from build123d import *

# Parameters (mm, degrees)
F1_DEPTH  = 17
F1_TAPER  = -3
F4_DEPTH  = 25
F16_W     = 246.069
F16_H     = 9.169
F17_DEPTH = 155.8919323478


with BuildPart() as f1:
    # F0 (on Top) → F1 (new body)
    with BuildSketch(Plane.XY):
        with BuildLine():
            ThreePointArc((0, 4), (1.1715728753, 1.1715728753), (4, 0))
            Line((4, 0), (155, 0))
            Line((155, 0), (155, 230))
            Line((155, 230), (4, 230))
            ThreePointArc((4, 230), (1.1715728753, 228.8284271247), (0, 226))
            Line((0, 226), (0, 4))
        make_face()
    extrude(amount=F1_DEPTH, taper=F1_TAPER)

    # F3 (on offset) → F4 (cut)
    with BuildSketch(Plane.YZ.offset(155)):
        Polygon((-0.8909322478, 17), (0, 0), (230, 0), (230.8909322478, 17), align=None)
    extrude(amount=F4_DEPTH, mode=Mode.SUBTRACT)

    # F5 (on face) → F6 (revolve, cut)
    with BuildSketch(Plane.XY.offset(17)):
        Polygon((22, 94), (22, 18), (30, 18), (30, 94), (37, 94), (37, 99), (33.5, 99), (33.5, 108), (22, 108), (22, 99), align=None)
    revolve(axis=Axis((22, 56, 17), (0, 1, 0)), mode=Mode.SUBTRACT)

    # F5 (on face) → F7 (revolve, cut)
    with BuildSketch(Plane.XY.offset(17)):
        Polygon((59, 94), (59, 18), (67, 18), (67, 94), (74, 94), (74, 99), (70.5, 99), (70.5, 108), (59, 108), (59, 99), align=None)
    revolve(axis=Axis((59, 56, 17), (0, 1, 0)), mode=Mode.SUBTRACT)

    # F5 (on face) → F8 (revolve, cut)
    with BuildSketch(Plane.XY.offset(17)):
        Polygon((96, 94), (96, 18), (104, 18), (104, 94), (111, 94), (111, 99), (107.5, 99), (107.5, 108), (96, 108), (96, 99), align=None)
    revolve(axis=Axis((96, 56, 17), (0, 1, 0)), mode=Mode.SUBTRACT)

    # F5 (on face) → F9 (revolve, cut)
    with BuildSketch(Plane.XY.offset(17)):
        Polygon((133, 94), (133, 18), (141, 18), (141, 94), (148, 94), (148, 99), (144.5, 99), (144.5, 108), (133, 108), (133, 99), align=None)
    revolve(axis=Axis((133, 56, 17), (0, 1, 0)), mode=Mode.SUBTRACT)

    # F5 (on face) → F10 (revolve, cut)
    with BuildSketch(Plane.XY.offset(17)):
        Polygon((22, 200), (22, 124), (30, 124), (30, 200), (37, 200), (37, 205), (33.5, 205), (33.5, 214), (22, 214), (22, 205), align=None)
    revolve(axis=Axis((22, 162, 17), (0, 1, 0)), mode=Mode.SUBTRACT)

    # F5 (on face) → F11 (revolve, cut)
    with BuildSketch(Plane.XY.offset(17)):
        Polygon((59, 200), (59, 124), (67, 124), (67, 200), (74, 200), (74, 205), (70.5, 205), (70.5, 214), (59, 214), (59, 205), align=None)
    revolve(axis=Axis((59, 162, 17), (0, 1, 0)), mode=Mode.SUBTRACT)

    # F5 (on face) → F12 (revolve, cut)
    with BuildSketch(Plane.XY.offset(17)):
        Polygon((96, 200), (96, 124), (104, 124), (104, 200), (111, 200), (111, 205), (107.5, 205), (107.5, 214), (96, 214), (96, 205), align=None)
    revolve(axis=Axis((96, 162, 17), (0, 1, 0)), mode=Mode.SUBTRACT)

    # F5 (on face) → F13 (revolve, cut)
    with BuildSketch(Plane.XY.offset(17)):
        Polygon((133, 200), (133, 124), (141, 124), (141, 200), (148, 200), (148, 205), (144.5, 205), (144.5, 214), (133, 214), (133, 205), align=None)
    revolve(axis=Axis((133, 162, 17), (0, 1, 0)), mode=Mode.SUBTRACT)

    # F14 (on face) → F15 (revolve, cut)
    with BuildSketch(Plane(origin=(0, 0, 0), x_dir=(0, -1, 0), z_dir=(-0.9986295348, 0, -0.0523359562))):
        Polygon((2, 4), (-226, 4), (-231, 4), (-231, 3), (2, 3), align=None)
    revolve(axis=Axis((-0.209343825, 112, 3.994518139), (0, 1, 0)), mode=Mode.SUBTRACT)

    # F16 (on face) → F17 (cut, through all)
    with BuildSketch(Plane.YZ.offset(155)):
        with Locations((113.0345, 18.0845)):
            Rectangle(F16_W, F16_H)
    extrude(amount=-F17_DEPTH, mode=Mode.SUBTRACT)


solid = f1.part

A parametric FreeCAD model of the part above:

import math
import FreeCAD as App
import Part
import Sketcher
from FreeCAD import Vector
Q = App.Units.Quantity

doc = App.newDocument("Part")
params = doc.addObject("Spreadsheet::Sheet", "Params")
for row, (alias, value) in enumerate([
    ("sketch1_radius", "4 mm"),
    ("sketch1_width", "151 mm"),
    ("sketch1_height", "230 mm"),
    ("pad1_length", "17 mm"),
    ("pad1_taper", "3 deg"),
    ("sketch2_width", "230 mm"),
    ("pocket1_length", "25 mm"),
    ("sketch3_width", "8 mm"),
    ("sketch3_width2", "7 mm"),
    ("sketch3_height", "76 mm"),
    ("sketch3_height2", "5 mm"),
    ("sketch3_height3", "9 mm"),
    ("groove_angle", "360 deg"),
    ("sketch4_width", "8 mm"),
    ("sketch4_width2", "7 mm"),
    ("sketch4_height", "76 mm"),
    ("sketch4_height2", "5 mm"),
    ("sketch4_height3", "9 mm"),
    ("groove2_angle", "360 deg"),
    ("sketch5_width", "8 mm"),
    ("sketch5_width2", "7 mm"),
    ("sketch5_height", "76 mm"),
    ("sketch5_height2", "5 mm"),
    ("sketch5_height3", "9 mm"),
    ("groove3_angle", "360 deg"),
    ("sketch6_width", "8 mm"),
    ("sketch6_width2", "7 mm"),
    ("sketch6_height", "76 mm"),
    ("sketch6_height2", "5 mm"),
    ("sketch6_height3", "9 mm"),
    ("groove4_angle", "360 deg"),
    ("sketch7_width", "8 mm"),
    ("sketch7_width2", "7 mm"),
    ("sketch7_height", "76 mm"),
    ("sketch7_height2", "5 mm"),
    ("sketch7_height3", "9 mm"),
    ("groove5_angle", "360 deg"),
    ("sketch8_width", "8 mm"),
    ("sketch8_width2", "7 mm"),
    ("sketch8_height", "76 mm"),
    ("sketch8_height2", "5 mm"),
    ("sketch8_height3", "9 mm"),
    ("groove6_angle", "360 deg"),
    ("sketch9_width", "8 mm"),
    ("sketch9_width2", "7 mm"),
    ("sketch9_height", "76 mm"),
    ("sketch9_height2", "5 mm"),
    ("sketch9_height3", "9 mm"),
    ("groove7_angle", "360 deg"),
    ("sketch10_width", "8 mm"),
    ("sketch10_width2", "7 mm"),
    ("sketch10_height", "76 mm"),
    ("sketch10_height2", "5 mm"),
    ("sketch10_height3", "9 mm"),
    ("groove8_angle", "360 deg"),
    ("sketch11_width", "233 mm"),
    ("sketch11_height", "1 mm"),
    ("groove9_angle", "360 deg"),
], start=1):
    params.set(f"A{row}", alias)
    params.set(f"B{row}", "=" + value)
    params.setAlias(f"B{row}", alias)

body = doc.addObject("PartDesign::Body", "Body")

# Sketch on XY plane
sketch1 = doc.addObject("Sketcher::SketchObject", "Sketch")
body.addObject(sketch1)
sketch1.AttachmentSupport = (doc.XY_Plane, [""])
sketch1.MapMode = "FlatFace"
sketch1.addGeometry(Part.ArcOfCircle(Part.Circle(Vector(4, 4, 0), Vector(0, 0, 1), 4), math.radians(180), math.radians(270)), False)
sketch1.addGeometry(Part.LineSegment(Vector(4, 0, 0), Vector(155, 0, 0)), False)
sketch1.addGeometry(Part.LineSegment(Vector(155, 0, 0), Vector(155, 230, 0)), False)
sketch1.addGeometry(Part.LineSegment(Vector(155, 230, 0), Vector(4, 230, 0)), False)
sketch1.addGeometry(Part.ArcOfCircle(Part.Circle(Vector(4, 226, 0), Vector(0, 0, 1), 4), math.radians(90), math.radians(180)), False)
sketch1.addGeometry(Part.LineSegment(Vector(0, 226, 0), Vector(0, 4, 0)), False)
sketch1.addConstraint(Sketcher.Constraint("Tangent", 0, 2, 1, 1))
sketch1.addConstraint(Sketcher.Constraint("Coincident", 1, 2, 2, 1))
sketch1.addConstraint(Sketcher.Constraint("Coincident", 2, 2, 3, 1))
sketch1.addConstraint(Sketcher.Constraint("Tangent", 3, 2, 4, 1))
sketch1.addConstraint(Sketcher.Constraint("Tangent", 4, 2, 5, 1))
sketch1.addConstraint(Sketcher.Constraint("Tangent", 5, 2, 0, 1))
sketch1.addConstraint(Sketcher.Constraint("Horizontal", 1))
sketch1.addConstraint(Sketcher.Constraint("Vertical", 2))
sketch1.addConstraint(Sketcher.Constraint("Horizontal", 3))
sketch1.addConstraint(Sketcher.Constraint("Vertical", 5))
sketch1.addConstraint(Sketcher.Constraint("Equal", 0, 4))
sketch1.addConstraint(Sketcher.Constraint("PointOnObject", 0, 2, -1))
sketch1.addConstraint(Sketcher.Constraint("PointOnObject", 4, 2, -2))
sketch1.addConstraint(Sketcher.Constraint("Radius", 0, Q("4 mm")))
sketch1.addConstraint(Sketcher.Constraint("DistanceX", 1, 1, 1, 2, Q("151 mm")))
sketch1.addConstraint(Sketcher.Constraint("DistanceY", 2, 1, 2, 2, Q("230 mm")))
sketch1.setExpression("Constraints[13]", "Params.sketch1_radius")
sketch1.setExpression("Constraints[14]", "Params.sketch1_width")
sketch1.setExpression("Constraints[15]", "Params.sketch1_height")
pad1 = doc.addObject("PartDesign::Pad", "Pad")
body.addObject(pad1)
pad1.Profile = sketch1
pad1.setExpression("Length", "Params.pad1_length")
pad1.setExpression("TaperAngle", "Params.pad1_taper")

# Sketch on YZ plane
sketch2 = doc.addObject("Sketcher::SketchObject", "Sketch001")
body.addObject(sketch2)
sketch2.AttachmentSupport = (doc.YZ_Plane, [""])
sketch2.MapMode = "FlatFace"
sketch2.AttachmentOffset = App.Placement(Vector(0, 0, 155), App.Rotation())
sketch2.addGeometry(Part.LineSegment(Vector(-0.890932, 17, 0), Vector(0, 0, 0)), False)
sketch2.addGeometry(Part.LineSegment(Vector(0, 0, 0), Vector(230, 0, 0)), False)
sketch2.addGeometry(Part.LineSegment(Vector(230, 0, 0), Vector(230.890932, 17, 0)), False)
sketch2.addGeometry(Part.LineSegment(Vector(230.890932, 17, 0), Vector(-0.890932, 17, 0)), False)
sketch2.addConstraint(Sketcher.Constraint("Coincident", 0, 2, 1, 1))
sketch2.addConstraint(Sketcher.Constraint("Coincident", 1, 2, 2, 1))
sketch2.addConstraint(Sketcher.Constraint("Coincident", 2, 2, 3, 1))
sketch2.addConstraint(Sketcher.Constraint("Coincident", 3, 2, 0, 1))
sketch2.addConstraint(Sketcher.Constraint("Horizontal", 1))
sketch2.addConstraint(Sketcher.Constraint("Horizontal", 3))
sketch2.addConstraint(Sketcher.Constraint("Coincident", 0, 2, -1, 1))
sketch2.addConstraint(Sketcher.Constraint("Equal", 0, 2))
sketch2.addConstraint(Sketcher.Constraint("DistanceX", 1, 1, 1, 2, Q("230 mm")))
sketch2.addConstraint(Sketcher.Constraint("Angle", 0, Q("-87 deg")))
sketch2.addConstraint(Sketcher.Constraint("DistanceY", -1, 1, 2, 2, Q("17 mm")))
sketch2.setExpression("Constraints[8]", "Params.sketch2_width")
pocket1 = doc.addObject("PartDesign::Pocket", "Pocket")
body.addObject(pocket1)
pocket1.Profile = sketch2
pocket1.setExpression("Length", "Params.pocket1_length")
pocket1.Reversed = True

# Sketch on XY plane
sketch3 = doc.addObject("Sketcher::SketchObject", "Sketch002")
body.addObject(sketch3)
sketch3.AttachmentSupport = (doc.XY_Plane, [""])
sketch3.MapMode = "FlatFace"
sketch3.AttachmentOffset = App.Placement(Vector(0, 0, 17), App.Rotation())
sketch3.addGeometry(Part.LineSegment(Vector(22, 18, 0), Vector(30, 18, 0)), False)
sketch3.addGeometry(Part.LineSegment(Vector(30, 18, 0), Vector(30, 94, 0)), False)
sketch3.addGeometry(Part.LineSegment(Vector(30, 94, 0), Vector(37, 94, 0)), False)
sketch3.addGeometry(Part.LineSegment(Vector(37, 94, 0), Vector(37, 99, 0)), False)
sketch3.addGeometry(Part.LineSegment(Vector(37, 99, 0), Vector(33.5, 99, 0)), False)
sketch3.addGeometry(Part.LineSegment(Vector(33.5, 99, 0), Vector(33.5, 108, 0)), False)
sketch3.addGeometry(Part.LineSegment(Vector(33.5, 108, 0), Vector(22, 108, 0)), False)
sketch3.addGeometry(Part.LineSegment(Vector(22, 108, 0), Vector(22, 18, 0)), False)
sketch3.addGeometry(Part.LineSegment(Vector(22, 18, 0), Vector(22, 108, 0)), True)  # axis
sketch3.addConstraint(Sketcher.Constraint("Coincident", 0, 2, 1, 1))
sketch3.addConstraint(Sketcher.Constraint("Coincident", 1, 2, 2, 1))
sketch3.addConstraint(Sketcher.Constraint("Coincident", 2, 2, 3, 1))
sketch3.addConstraint(Sketcher.Constraint("Coincident", 3, 2, 4, 1))
sketch3.addConstraint(Sketcher.Constraint("Coincident", 4, 2, 5, 1))
sketch3.addConstraint(Sketcher.Constraint("Coincident", 5, 2, 6, 1))
sketch3.addConstraint(Sketcher.Constraint("Coincident", 6, 2, 7, 1))
sketch3.addConstraint(Sketcher.Constraint("Coincident", 7, 2, 0, 1))
sketch3.addConstraint(Sketcher.Constraint("Horizontal", 0))
sketch3.addConstraint(Sketcher.Constraint("Vertical", 1))
sketch3.addConstraint(Sketcher.Constraint("Horizontal", 2))
sketch3.addConstraint(Sketcher.Constraint("Vertical", 3))
sketch3.addConstraint(Sketcher.Constraint("Horizontal", 4))
sketch3.addConstraint(Sketcher.Constraint("Vertical", 5))
sketch3.addConstraint(Sketcher.Constraint("Horizontal", 6))
sketch3.addConstraint(Sketcher.Constraint("Vertical", 7))
sketch3.addConstraint(Sketcher.Constraint("Vertical", 8))
sketch3.addConstraint(Sketcher.Constraint("Coincident", 8, 1, 7, 2))
sketch3.addConstraint(Sketcher.Constraint("Horizontal", 5, 2, 8, 2))
sketch3.addConstraint(Sketcher.Constraint("DistanceX", 0, 1, 0, 2, Q("8 mm")))
sketch3.addConstraint(Sketcher.Constraint("DistanceX", 2, 1, 2, 2, Q("7 mm")))
sketch3.addConstraint(Sketcher.Constraint("DistanceY", 1, 1, 1, 2, Q("76 mm")))
sketch3.addConstraint(Sketcher.Constraint("DistanceY", 3, 1, 3, 2, Q("5 mm")))
sketch3.addConstraint(Sketcher.Constraint("DistanceY", 5, 1, 5, 2, Q("9 mm")))
sketch3.addConstraint(Sketcher.Constraint("DistanceX", 4, 2, 4, 1, Q("3.5 mm")))
sketch3.addConstraint(Sketcher.Constraint("DistanceX", -1, 1, 0, 2, Q("30 mm")))
sketch3.addConstraint(Sketcher.Constraint("DistanceY", -1, 1, 0, 2, Q("18 mm")))
sketch3.setExpression("Constraints[19]", "Params.sketch3_width")
sketch3.setExpression("Constraints[20]", "Params.sketch3_width2")
sketch3.setExpression("Constraints[21]", "Params.sketch3_height")
sketch3.setExpression("Constraints[22]", "Params.sketch3_height2")
sketch3.setExpression("Constraints[23]", "Params.sketch3_height3")
groove = doc.addObject("PartDesign::Groove", "Groove")
body.addObject(groove)
groove.Profile = sketch3
groove.ReferenceAxis = (sketch3, ["Axis0"])
groove.setExpression("Angle", "Params.groove_angle")

# Sketch on XY plane
sketch4 = doc.addObject("Sketcher::SketchObject", "Sketch003")
body.addObject(sketch4)
sketch4.AttachmentSupport = (doc.XY_Plane, [""])
sketch4.MapMode = "FlatFace"
sketch4.AttachmentOffset = App.Placement(Vector(0, 0, 17), App.Rotation())
sketch4.addGeometry(Part.LineSegment(Vector(59, 18, 0), Vector(67, 18, 0)), False)
sketch4.addGeometry(Part.LineSegment(Vector(67, 18, 0), Vector(67, 94, 0)), False)
sketch4.addGeometry(Part.LineSegment(Vector(67, 94, 0), Vector(74, 94, 0)), False)
sketch4.addGeometry(Part.LineSegment(Vector(74, 94, 0), Vector(74, 99, 0)), False)
sketch4.addGeometry(Part.LineSegment(Vector(74, 99, 0), Vector(70.5, 99, 0)), False)
sketch4.addGeometry(Part.LineSegment(Vector(70.5, 99, 0), Vector(70.5, 108, 0)), False)
sketch4.addGeometry(Part.LineSegment(Vector(70.5, 108, 0), Vector(59, 108, 0)), False)
sketch4.addGeometry(Part.LineSegment(Vector(59, 108, 0), Vector(59, 18, 0)), False)
sketch4.addGeometry(Part.LineSegment(Vector(59, 18, 0), Vector(59, 108, 0)), True)  # axis
sketch4.addConstraint(Sketcher.Constraint("Coincident", 0, 2, 1, 1))
sketch4.addConstraint(Sketcher.Constraint("Coincident", 1, 2, 2, 1))
sketch4.addConstraint(Sketcher.Constraint("Coincident", 2, 2, 3, 1))
sketch4.addConstraint(Sketcher.Constraint("Coincident", 3, 2, 4, 1))
sketch4.addConstraint(Sketcher.Constraint("Coincident", 4, 2, 5, 1))
sketch4.addConstraint(Sketcher.Constraint("Coincident", 5, 2, 6, 1))
sketch4.addConstraint(Sketcher.Constraint("Coincident", 6, 2, 7, 1))
sketch4.addConstraint(Sketcher.Constraint("Coincident", 7, 2, 0, 1))
sketch4.addConstraint(Sketcher.Constraint("Horizontal", 0))
sketch4.addConstraint(Sketcher.Constraint("Vertical", 1))
sketch4.addConstraint(Sketcher.Constraint("Horizontal", 2))
sketch4.addConstraint(Sketcher.Constraint("Vertical", 3))
sketch4.addConstraint(Sketcher.Constraint("Horizontal", 4))
sketch4.addConstraint(Sketcher.Constraint("Vertical", 5))
sketch4.addConstraint(Sketcher.Constraint("Horizontal", 6))
sketch4.addConstraint(Sketcher.Constraint("Vertical", 7))
sketch4.addConstraint(Sketcher.Constraint("Vertical", 8))
sketch4.addConstraint(Sketcher.Constraint("Coincident", 8, 1, 7, 2))
sketch4.addConstraint(Sketcher.Constraint("Horizontal", 5, 2, 8, 2))
sketch4.addConstraint(Sketcher.Constraint("DistanceX", 0, 1, 0, 2, Q("8 mm")))
sketch4.addConstraint(Sketcher.Constraint("DistanceX", 2, 1, 2, 2, Q("7 mm")))
sketch4.addConstraint(Sketcher.Constraint("DistanceY", 1, 1, 1, 2, Q("76 mm")))
sketch4.addConstraint(Sketcher.Constraint("DistanceY", 3, 1, 3, 2, Q("5 mm")))
sketch4.addConstraint(Sketcher.Constraint("DistanceY", 5, 1, 5, 2, Q("9 mm")))
sketch4.addConstraint(Sketcher.Constraint("DistanceX", 4, 2, 4, 1, Q("3.5 mm")))
sketch4.addConstraint(Sketcher.Constraint("DistanceX", -1, 1, 0, 2, Q("67 mm")))
sketch4.addConstraint(Sketcher.Constraint("DistanceY", -1, 1, 0, 2, Q("18 mm")))
sketch4.setExpression("Constraints[19]", "Params.sketch4_width")
sketch4.setExpression("Constraints[20]", "Params.sketch4_width2")
sketch4.setExpression("Constraints[21]", "Params.sketch4_height")
sketch4.setExpression("Constraints[22]", "Params.sketch4_height2")
sketch4.setExpression("Constraints[23]", "Params.sketch4_height3")
groove2 = doc.addObject("PartDesign::Groove", "Groove001")
body.addObject(groove2)
groove2.Profile = sketch4
groove2.ReferenceAxis = (sketch4, ["Axis0"])
groove2.setExpression("Angle", "Params.groove2_angle")

# Sketch on XY plane
sketch5 = doc.addObject("Sketcher::SketchObject", "Sketch004")
body.addObject(sketch5)
sketch5.AttachmentSupport = (doc.XY_Plane, [""])
sketch5.MapMode = "FlatFace"
sketch5.AttachmentOffset = App.Placement(Vector(0, 0, 17), App.Rotation())
sketch5.addGeometry(Part.LineSegment(Vector(96, 18, 0), Vector(104, 18, 0)), False)
sketch5.addGeometry(Part.LineSegment(Vector(104, 18, 0), Vector(104, 94, 0)), False)
sketch5.addGeometry(Part.LineSegment(Vector(104, 94, 0), Vector(111, 94, 0)), False)
sketch5.addGeometry(Part.LineSegment(Vector(111, 94, 0), Vector(111, 99, 0)), False)
sketch5.addGeometry(Part.LineSegment(Vector(111, 99, 0), Vector(107.5, 99, 0)), False)
sketch5.addGeometry(Part.LineSegment(Vector(107.5, 99, 0), Vector(107.5, 108, 0)), False)
sketch5.addGeometry(Part.LineSegment(Vector(107.5, 108, 0), Vector(96, 108, 0)), False)
sketch5.addGeometry(Part.LineSegment(Vector(96, 108, 0), Vector(96, 18, 0)), False)
sketch5.addGeometry(Part.LineSegment(Vector(96, 18, 0), Vector(96, 108, 0)), True)  # axis
sketch5.addConstraint(Sketcher.Constraint("Coincident", 0, 2, 1, 1))
sketch5.addConstraint(Sketcher.Constraint("Coincident", 1, 2, 2, 1))
sketch5.addConstraint(Sketcher.Constraint("Coincident", 2, 2, 3, 1))
sketch5.addConstraint(Sketcher.Constraint("Coincident", 3, 2, 4, 1))
sketch5.addConstraint(Sketcher.Constraint("Coincident", 4, 2, 5, 1))
sketch5.addConstraint(Sketcher.Constraint("Coincident", 5, 2, 6, 1))
sketch5.addConstraint(Sketcher.Constraint("Coincident", 6, 2, 7, 1))
sketch5.addConstraint(Sketcher.Constraint("Coincident", 7, 2, 0, 1))
sketch5.addConstraint(Sketcher.Constraint("Horizontal", 0))
sketch5.addConstraint(Sketcher.Constraint("Vertical", 1))
sketch5.addConstraint(Sketcher.Constraint("Horizontal", 2))
sketch5.addConstraint(Sketcher.Constraint("Vertical", 3))
sketch5.addConstraint(Sketcher.Constraint("Horizontal", 4))
sketch5.addConstraint(Sketcher.Constraint("Vertical", 5))
sketch5.addConstraint(Sketcher.Constraint("Horizontal", 6))
sketch5.addConstraint(Sketcher.Constraint("Vertical", 7))
sketch5.addConstraint(Sketcher.Constraint("Vertical", 8))
sketch5.addConstraint(Sketcher.Constraint("Coincident", 8, 1, 7, 2))
sketch5.addConstraint(Sketcher.Constraint("Horizontal", 5, 2, 8, 2))
sketch5.addConstraint(Sketcher.Constraint("DistanceX", 0, 1, 0, 2, Q("8 mm")))
sketch5.addConstraint(Sketcher.Constraint("DistanceX", 2, 1, 2, 2, Q("7 mm")))
sketch5.addConstraint(Sketcher.Constraint("DistanceY", 1, 1, 1, 2, Q("76 mm")))
sketch5.addConstraint(Sketcher.Constraint("DistanceY", 3, 1, 3, 2, Q("5 mm")))
sketch5.addConstraint(Sketcher.Constraint("DistanceY", 5, 1, 5, 2, Q("9 mm")))
sketch5.addConstraint(Sketcher.Constraint("DistanceX", 4, 2, 4, 1, Q("3.5 mm")))
sketch5.addConstraint(Sketcher.Constraint("DistanceX", -1, 1, 0, 2, Q("104 mm")))
sketch5.addConstraint(Sketcher.Constraint("DistanceY", -1, 1, 0, 2, Q("18 mm")))
sketch5.setExpression("Constraints[19]", "Params.sketch5_width")
sketch5.setExpression("Constraints[20]", "Params.sketch5_width2")
sketch5.setExpression("Constraints[21]", "Params.sketch5_height")
sketch5.setExpression("Constraints[22]", "Params.sketch5_height2")
sketch5.setExpression("Constraints[23]", "Params.sketch5_height3")
groove3 = doc.addObject("PartDesign::Groove", "Groove002")
body.addObject(groove3)
groove3.Profile = sketch5
groove3.ReferenceAxis = (sketch5, ["Axis0"])
groove3.setExpression("Angle", "Params.groove3_angle")

# Sketch on XY plane
sketch6 = doc.addObject("Sketcher::SketchObject", "Sketch005")
body.addObject(sketch6)
sketch6.AttachmentSupport = (doc.XY_Plane, [""])
sketch6.MapMode = "FlatFace"
sketch6.AttachmentOffset = App.Placement(Vector(0, 0, 17), App.Rotation())
sketch6.addGeometry(Part.LineSegment(Vector(133, 18, 0), Vector(141, 18, 0)), False)
sketch6.addGeometry(Part.LineSegment(Vector(141, 18, 0), Vector(141, 94, 0)), False)
sketch6.addGeometry(Part.LineSegment(Vector(141, 94, 0), Vector(148, 94, 0)), False)
sketch6.addGeometry(Part.LineSegment(Vector(148, 94, 0), Vector(148, 99, 0)), False)
sketch6.addGeometry(Part.LineSegment(Vector(148, 99, 0), Vector(144.5, 99, 0)), False)
sketch6.addGeometry(Part.LineSegment(Vector(144.5, 99, 0), Vector(144.5, 108, 0)), False)
sketch6.addGeometry(Part.LineSegment(Vector(144.5, 108, 0), Vector(133, 108, 0)), False)
sketch6.addGeometry(Part.LineSegment(Vector(133, 108, 0), Vector(133, 18, 0)), False)
sketch6.addGeometry(Part.LineSegment(Vector(133, 18, 0), Vector(133, 108, 0)), True)  # axis
sketch6.addConstraint(Sketcher.Constraint("Coincident", 0, 2, 1, 1))
sketch6.addConstraint(Sketcher.Constraint("Coincident", 1, 2, 2, 1))
sketch6.addConstraint(Sketcher.Constraint("Coincident", 2, 2, 3, 1))
sketch6.addConstraint(Sketcher.Constraint("Coincident", 3, 2, 4, 1))
sketch6.addConstraint(Sketcher.Constraint("Coincident", 4, 2, 5, 1))
sketch6.addConstraint(Sketcher.Constraint("Coincident", 5, 2, 6, 1))
sketch6.addConstraint(Sketcher.Constraint("Coincident", 6, 2, 7, 1))
sketch6.addConstraint(Sketcher.Constraint("Coincident", 7, 2, 0, 1))
sketch6.addConstraint(Sketcher.Constraint("Horizontal", 0))
sketch6.addConstraint(Sketcher.Constraint("Vertical", 1))
sketch6.addConstraint(Sketcher.Constraint("Horizontal", 2))
sketch6.addConstraint(Sketcher.Constraint("Vertical", 3))
sketch6.addConstraint(Sketcher.Constraint("Horizontal", 4))
sketch6.addConstraint(Sketcher.Constraint("Vertical", 5))
sketch6.addConstraint(Sketcher.Constraint("Horizontal", 6))
sketch6.addConstraint(Sketcher.Constraint("Vertical", 7))
sketch6.addConstraint(Sketcher.Constraint("Vertical", 8))
sketch6.addConstraint(Sketcher.Constraint("Coincident", 8, 1, 7, 2))
sketch6.addConstraint(Sketcher.Constraint("Horizontal", 5, 2, 8, 2))
sketch6.addConstraint(Sketcher.Constraint("DistanceX", 0, 1, 0, 2, Q("8 mm")))
sketch6.addConstraint(Sketcher.Constraint("DistanceX", 2, 1, 2, 2, Q("7 mm")))
sketch6.addConstraint(Sketcher.Constraint("DistanceY", 1, 1, 1, 2, Q("76 mm")))
sketch6.addConstraint(Sketcher.Constraint("DistanceY", 3, 1, 3, 2, Q("5 mm")))
sketch6.addConstraint(Sketcher.Constraint("DistanceY", 5, 1, 5, 2, Q("9 mm")))
sketch6.addConstraint(Sketcher.Constraint("DistanceX", 4, 2, 4, 1, Q("3.5 mm")))
sketch6.addConstraint(Sketcher.Constraint("DistanceX", -1, 1, 0, 2, Q("141 mm")))
sketch6.addConstraint(Sketcher.Constraint("DistanceY", -1, 1, 0, 2, Q("18 mm")))
sketch6.setExpression("Constraints[19]", "Params.sketch6_width")
sketch6.setExpression("Constraints[20]", "Params.sketch6_width2")
sketch6.setExpression("Constraints[21]", "Params.sketch6_height")
sketch6.setExpression("Constraints[22]", "Params.sketch6_height2")
sketch6.setExpression("Constraints[23]", "Params.sketch6_height3")
groove4 = doc.addObject("PartDesign::Groove", "Groove003")
body.addObject(groove4)
groove4.Profile = sketch6
groove4.ReferenceAxis = (sketch6, ["Axis0"])
groove4.setExpression("Angle", "Params.groove4_angle")

# Sketch on XY plane
sketch7 = doc.addObject("Sketcher::SketchObject", "Sketch006")
body.addObject(sketch7)
sketch7.AttachmentSupport = (doc.XY_Plane, [""])
sketch7.MapMode = "FlatFace"
sketch7.AttachmentOffset = App.Placement(Vector(0, 0, 17), App.Rotation())
sketch7.addGeometry(Part.LineSegment(Vector(22, 124, 0), Vector(30, 124, 0)), False)
sketch7.addGeometry(Part.LineSegment(Vector(30, 124, 0), Vector(30, 200, 0)), False)
sketch7.addGeometry(Part.LineSegment(Vector(30, 200, 0), Vector(37, 200, 0)), False)
sketch7.addGeometry(Part.LineSegment(Vector(37, 200, 0), Vector(37, 205, 0)), False)
sketch7.addGeometry(Part.LineSegment(Vector(37, 205, 0), Vector(33.5, 205, 0)), False)
sketch7.addGeometry(Part.LineSegment(Vector(33.5, 205, 0), Vector(33.5, 214, 0)), False)
sketch7.addGeometry(Part.LineSegment(Vector(33.5, 214, 0), Vector(22, 214, 0)), False)
sketch7.addGeometry(Part.LineSegment(Vector(22, 214, 0), Vector(22, 124, 0)), False)
sketch7.addGeometry(Part.LineSegment(Vector(22, 124, 0), Vector(22, 214, 0)), True)  # axis
sketch7.addConstraint(Sketcher.Constraint("Coincident", 0, 2, 1, 1))
sketch7.addConstraint(Sketcher.Constraint("Coincident", 1, 2, 2, 1))
sketch7.addConstraint(Sketcher.Constraint("Coincident", 2, 2, 3, 1))
sketch7.addConstraint(Sketcher.Constraint("Coincident", 3, 2, 4, 1))
sketch7.addConstraint(Sketcher.Constraint("Coincident", 4, 2, 5, 1))
sketch7.addConstraint(Sketcher.Constraint("Coincident", 5, 2, 6, 1))
sketch7.addConstraint(Sketcher.Constraint("Coincident", 6, 2, 7, 1))
sketch7.addConstraint(Sketcher.Constraint("Coincident", 7, 2, 0, 1))
sketch7.addConstraint(Sketcher.Constraint("Horizontal", 0))
sketch7.addConstraint(Sketcher.Constraint("Vertical", 1))
sketch7.addConstraint(Sketcher.Constraint("Horizontal", 2))
sketch7.addConstraint(Sketcher.Constraint("Vertical", 3))
sketch7.addConstraint(Sketcher.Constraint("Horizontal", 4))
sketch7.addConstraint(Sketcher.Constraint("Vertical", 5))
sketch7.addConstraint(Sketcher.Constraint("Horizontal", 6))
sketch7.addConstraint(Sketcher.Constraint("Vertical", 7))
sketch7.addConstraint(Sketcher.Constraint("Vertical", 8))
sketch7.addConstraint(Sketcher.Constraint("Coincident", 8, 1, 7, 2))
sketch7.addConstraint(Sketcher.Constraint("Horizontal", 5, 2, 8, 2))
sketch7.addConstraint(Sketcher.Constraint("DistanceX", 0, 1, 0, 2, Q("8 mm")))
sketch7.addConstraint(Sketcher.Constraint("DistanceX", 2, 1, 2, 2, Q("7 mm")))
sketch7.addConstraint(Sketcher.Constraint("DistanceY", 1, 1, 1, 2, Q("76 mm")))
sketch7.addConstraint(Sketcher.Constraint("DistanceY", 3, 1, 3, 2, Q("5 mm")))
sketch7.addConstraint(Sketcher.Constraint("DistanceY", 5, 1, 5, 2, Q("9 mm")))
sketch7.addConstraint(Sketcher.Constraint("DistanceX", 4, 2, 4, 1, Q("3.5 mm")))
sketch7.addConstraint(Sketcher.Constraint("DistanceX", -1, 1, 0, 2, Q("30 mm")))
sketch7.addConstraint(Sketcher.Constraint("DistanceY", -1, 1, 0, 2, Q("124 mm")))
sketch7.setExpression("Constraints[19]", "Params.sketch7_width")
sketch7.setExpression("Constraints[20]", "Params.sketch7_width2")
sketch7.setExpression("Constraints[21]", "Params.sketch7_height")
sketch7.setExpression("Constraints[22]", "Params.sketch7_height2")
sketch7.setExpression("Constraints[23]", "Params.sketch7_height3")
groove5 = doc.addObject("PartDesign::Groove", "Groove004")
body.addObject(groove5)
groove5.Profile = sketch7
groove5.ReferenceAxis = (sketch7, ["Axis0"])
groove5.setExpression("Angle", "Params.groove5_angle")

# Sketch on XY plane
sketch8 = doc.addObject("Sketcher::SketchObject", "Sketch007")
body.addObject(sketch8)
sketch8.AttachmentSupport = (doc.XY_Plane, [""])
sketch8.MapMode = "FlatFace"
sketch8.AttachmentOffset = App.Placement(Vector(0, 0, 17), App.Rotation())
sketch8.addGeometry(Part.LineSegment(Vector(59, 124, 0), Vector(67, 124, 0)), False)
sketch8.addGeometry(Part.LineSegment(Vector(67, 124, 0), Vector(67, 200, 0)), False)
sketch8.addGeometry(Part.LineSegment(Vector(67, 200, 0), Vector(74, 200, 0)), False)
sketch8.addGeometry(Part.LineSegment(Vector(74, 200, 0), Vector(74, 205, 0)), False)
sketch8.addGeometry(Part.LineSegment(Vector(74, 205, 0), Vector(70.5, 205, 0)), False)
sketch8.addGeometry(Part.LineSegment(Vector(70.5, 205, 0), Vector(70.5, 214, 0)), False)
sketch8.addGeometry(Part.LineSegment(Vector(70.5, 214, 0), Vector(59, 214, 0)), False)
sketch8.addGeometry(Part.LineSegment(Vector(59, 214, 0), Vector(59, 124, 0)), False)
sketch8.addGeometry(Part.LineSegment(Vector(59, 124, 0), Vector(59, 214, 0)), True)  # axis
sketch8.addConstraint(Sketcher.Constraint("Coincident", 0, 2, 1, 1))
sketch8.addConstraint(Sketcher.Constraint("Coincident", 1, 2, 2, 1))
sketch8.addConstraint(Sketcher.Constraint("Coincident", 2, 2, 3, 1))
sketch8.addConstraint(Sketcher.Constraint("Coincident", 3, 2, 4, 1))
sketch8.addConstraint(Sketcher.Constraint("Coincident", 4, 2, 5, 1))
sketch8.addConstraint(Sketcher.Constraint("Coincident", 5, 2, 6, 1))
sketch8.addConstraint(Sketcher.Constraint("Coincident", 6, 2, 7, 1))
sketch8.addConstraint(Sketcher.Constraint("Coincident", 7, 2, 0, 1))
sketch8.addConstraint(Sketcher.Constraint("Horizontal", 0))
sketch8.addConstraint(Sketcher.Constraint("Vertical", 1))
sketch8.addConstraint(Sketcher.Constraint("Horizontal", 2))
sketch8.addConstraint(Sketcher.Constraint("Vertical", 3))
sketch8.addConstraint(Sketcher.Constraint("Horizontal", 4))
sketch8.addConstraint(Sketcher.Constraint("Vertical", 5))
sketch8.addConstraint(Sketcher.Constraint("Horizontal", 6))
sketch8.addConstraint(Sketcher.Constraint("Vertical", 7))
sketch8.addConstraint(Sketcher.Constraint("Vertical", 8))
sketch8.addConstraint(Sketcher.Constraint("Coincident", 8, 1, 7, 2))
sketch8.addConstraint(Sketcher.Constraint("Horizontal", 5, 2, 8, 2))
sketch8.addConstraint(Sketcher.Constraint("DistanceX", 0, 1, 0, 2, Q("8 mm")))
sketch8.addConstraint(Sketcher.Constraint("DistanceX", 2, 1, 2, 2, Q("7 mm")))
sketch8.addConstraint(Sketcher.Constraint("DistanceY", 1, 1, 1, 2, Q("76 mm")))
sketch8.addConstraint(Sketcher.Constraint("DistanceY", 3, 1, 3, 2, Q("5 mm")))
sketch8.addConstraint(Sketcher.Constraint("DistanceY", 5, 1, 5, 2, Q("9 mm")))
sketch8.addConstraint(Sketcher.Constraint("DistanceX", 4, 2, 4, 1, Q("3.5 mm")))
sketch8.addConstraint(Sketcher.Constraint("DistanceX", -1, 1, 0, 2, Q("67 mm")))
sketch8.addConstraint(Sketcher.Constraint("DistanceY", -1, 1, 0, 2, Q("124 mm")))
sketch8.setExpression("Constraints[19]", "Params.sketch8_width")
sketch8.setExpression("Constraints[20]", "Params.sketch8_width2")
sketch8.setExpression("Constraints[21]", "Params.sketch8_height")
sketch8.setExpression("Constraints[22]", "Params.sketch8_height2")
sketch8.setExpression("Constraints[23]", "Params.sketch8_height3")
groove6 = doc.addObject("PartDesign::Groove", "Groove005")
body.addObject(groove6)
groove6.Profile = sketch8
groove6.ReferenceAxis = (sketch8, ["Axis0"])
groove6.setExpression("Angle", "Params.groove6_angle")

# Sketch on XY plane
sketch9 = doc.addObject("Sketcher::SketchObject", "Sketch008")
body.addObject(sketch9)
sketch9.AttachmentSupport = (doc.XY_Plane, [""])
sketch9.MapMode = "FlatFace"
sketch9.AttachmentOffset = App.Placement(Vector(0, 0, 17), App.Rotation())
sketch9.addGeometry(Part.LineSegment(Vector(96, 124, 0), Vector(104, 124, 0)), False)
sketch9.addGeometry(Part.LineSegment(Vector(104, 124, 0), Vector(104, 200, 0)), False)
sketch9.addGeometry(Part.LineSegment(Vector(104, 200, 0), Vector(111, 200, 0)), False)
sketch9.addGeometry(Part.LineSegment(Vector(111, 200, 0), Vector(111, 205, 0)), False)
sketch9.addGeometry(Part.LineSegment(Vector(111, 205, 0), Vector(107.5, 205, 0)), False)
sketch9.addGeometry(Part.LineSegment(Vector(107.5, 205, 0), Vector(107.5, 214, 0)), False)
sketch9.addGeometry(Part.LineSegment(Vector(107.5, 214, 0), Vector(96, 214, 0)), False)
sketch9.addGeometry(Part.LineSegment(Vector(96, 214, 0), Vector(96, 124, 0)), False)
sketch9.addGeometry(Part.LineSegment(Vector(96, 124, 0), Vector(96, 214, 0)), True)  # axis
sketch9.addConstraint(Sketcher.Constraint("Coincident", 0, 2, 1, 1))
sketch9.addConstraint(Sketcher.Constraint("Coincident", 1, 2, 2, 1))
sketch9.addConstraint(Sketcher.Constraint("Coincident", 2, 2, 3, 1))
sketch9.addConstraint(Sketcher.Constraint("Coincident", 3, 2, 4, 1))
sketch9.addConstraint(Sketcher.Constraint("Coincident", 4, 2, 5, 1))
sketch9.addConstraint(Sketcher.Constraint("Coincident", 5, 2, 6, 1))
sketch9.addConstraint(Sketcher.Constraint("Coincident", 6, 2, 7, 1))
sketch9.addConstraint(Sketcher.Constraint("Coincident", 7, 2, 0, 1))
sketch9.addConstraint(Sketcher.Constraint("Horizontal", 0))
sketch9.addConstraint(Sketcher.Constraint("Vertical", 1))
sketch9.addConstraint(Sketcher.Constraint("Horizontal", 2))
sketch9.addConstraint(Sketcher.Constraint("Vertical", 3))
sketch9.addConstraint(Sketcher.Constraint("Horizontal", 4))
sketch9.addConstraint(Sketcher.Constraint("Vertical", 5))
sketch9.addConstraint(Sketcher.Constraint("Horizontal", 6))
sketch9.addConstraint(Sketcher.Constraint("Vertical", 7))
sketch9.addConstraint(Sketcher.Constraint("Vertical", 8))
sketch9.addConstraint(Sketcher.Constraint("Coincident", 8, 1, 7, 2))
sketch9.addConstraint(Sketcher.Constraint("Horizontal", 5, 2, 8, 2))
sketch9.addConstraint(Sketcher.Constraint("DistanceX", 0, 1, 0, 2, Q("8 mm")))
sketch9.addConstraint(Sketcher.Constraint("DistanceX", 2, 1, 2, 2, Q("7 mm")))
sketch9.addConstraint(Sketcher.Constraint("DistanceY", 1, 1, 1, 2, Q("76 mm")))
sketch9.addConstraint(Sketcher.Constraint("DistanceY", 3, 1, 3, 2, Q("5 mm")))
sketch9.addConstraint(Sketcher.Constraint("DistanceY", 5, 1, 5, 2, Q("9 mm")))
sketch9.addConstraint(Sketcher.Constraint("DistanceX", 4, 2, 4, 1, Q("3.5 mm")))
sketch9.addConstraint(Sketcher.Constraint("DistanceX", -1, 1, 0, 2, Q("104 mm")))
sketch9.addConstraint(Sketcher.Constraint("DistanceY", -1, 1, 0, 2, Q("124 mm")))
sketch9.setExpression("Constraints[19]", "Params.sketch9_width")
sketch9.setExpression("Constraints[20]", "Params.sketch9_width2")
sketch9.setExpression("Constraints[21]", "Params.sketch9_height")
sketch9.setExpression("Constraints[22]", "Params.sketch9_height2")
sketch9.setExpression("Constraints[23]", "Params.sketch9_height3")
groove7 = doc.addObject("PartDesign::Groove", "Groove006")
body.addObject(groove7)
groove7.Profile = sketch9
groove7.ReferenceAxis = (sketch9, ["Axis0"])
groove7.setExpression("Angle", "Params.groove7_angle")

# Sketch on XY plane
sketch10 = doc.addObject("Sketcher::SketchObject", "Sketch009")
body.addObject(sketch10)
sketch10.AttachmentSupport = (doc.XY_Plane, [""])
sketch10.MapMode = "FlatFace"
sketch10.AttachmentOffset = App.Placement(Vector(0, 0, 17), App.Rotation())
sketch10.addGeometry(Part.LineSegment(Vector(133, 124, 0), Vector(141, 124, 0)), False)
sketch10.addGeometry(Part.LineSegment(Vector(141, 124, 0), Vector(141, 200, 0)), False)
sketch10.addGeometry(Part.LineSegment(Vector(141, 200, 0), Vector(148, 200, 0)), False)
sketch10.addGeometry(Part.LineSegment(Vector(148, 200, 0), Vector(148, 205, 0)), False)
sketch10.addGeometry(Part.LineSegment(Vector(148, 205, 0), Vector(144.5, 205, 0)), False)
sketch10.addGeometry(Part.LineSegment(Vector(144.5, 205, 0), Vector(144.5, 214, 0)), False)
sketch10.addGeometry(Part.LineSegment(Vector(144.5, 214, 0), Vector(133, 214, 0)), False)
sketch10.addGeometry(Part.LineSegment(Vector(133, 214, 0), Vector(133, 124, 0)), False)
sketch10.addGeometry(Part.LineSegment(Vector(133, 124, 0), Vector(133, 214, 0)), True)  # axis
sketch10.addConstraint(Sketcher.Constraint("Coincident", 0, 2, 1, 1))
sketch10.addConstraint(Sketcher.Constraint("Coincident", 1, 2, 2, 1))
sketch10.addConstraint(Sketcher.Constraint("Coincident", 2, 2, 3, 1))
sketch10.addConstraint(Sketcher.Constraint("Coincident", 3, 2, 4, 1))
sketch10.addConstraint(Sketcher.Constraint("Coincident", 4, 2, 5, 1))
sketch10.addConstraint(Sketcher.Constraint("Coincident", 5, 2, 6, 1))
sketch10.addConstraint(Sketcher.Constraint("Coincident", 6, 2, 7, 1))
sketch10.addConstraint(Sketcher.Constraint("Coincident", 7, 2, 0, 1))
sketch10.addConstraint(Sketcher.Constraint("Horizontal", 0))
sketch10.addConstraint(Sketcher.Constraint("Vertical", 1))
sketch10.addConstraint(Sketcher.Constraint("Horizontal", 2))
sketch10.addConstraint(Sketcher.Constraint("Vertical", 3))
sketch10.addConstraint(Sketcher.Constraint("Horizontal", 4))
sketch10.addConstraint(Sketcher.Constraint("Vertical", 5))
sketch10.addConstraint(Sketcher.Constraint("Horizontal", 6))
sketch10.addConstraint(Sketcher.Constraint("Vertical", 7))
sketch10.addConstraint(Sketcher.Constraint("Vertical", 8))
sketch10.addConstraint(Sketcher.Constraint("Coincident", 8, 1, 7, 2))
sketch10.addConstraint(Sketcher.Constraint("Horizontal", 5, 2, 8, 2))
sketch10.addConstraint(Sketcher.Constraint("DistanceX", 0, 1, 0, 2, Q("8 mm")))
sketch10.addConstraint(Sketcher.Constraint("DistanceX", 2, 1, 2, 2, Q("7 mm")))
sketch10.addConstraint(Sketcher.Constraint("DistanceY", 1, 1, 1, 2, Q("76 mm")))
sketch10.addConstraint(Sketcher.Constraint("DistanceY", 3, 1, 3, 2, Q("5 mm")))
sketch10.addConstraint(Sketcher.Constraint("DistanceY", 5, 1, 5, 2, Q("9 mm")))
sketch10.addConstraint(Sketcher.Constraint("DistanceX", 4, 2, 4, 1, Q("3.5 mm")))
sketch10.addConstraint(Sketcher.Constraint("DistanceX", -1, 1, 0, 2, Q("141 mm")))
sketch10.addConstraint(Sketcher.Constraint("DistanceY", -1, 1, 0, 2, Q("124 mm")))
sketch10.setExpression("Constraints[19]", "Params.sketch10_width")
sketch10.setExpression("Constraints[20]", "Params.sketch10_width2")
sketch10.setExpression("Constraints[21]", "Params.sketch10_height")
sketch10.setExpression("Constraints[22]", "Params.sketch10_height2")
sketch10.setExpression("Constraints[23]", "Params.sketch10_height3")
groove8 = doc.addObject("PartDesign::Groove", "Groove007")
body.addObject(groove8)
groove8.Profile = sketch10
groove8.ReferenceAxis = (sketch10, ["Axis0"])
groove8.setExpression("Angle", "Params.groove8_angle")

# Sketch on an angled plane
sketch11 = doc.addObject("Sketcher::SketchObject", "Sketch010")
body.addObject(sketch11)
sketch11.Placement = App.Placement(Vector(0, 0, 0), App.Rotation(Vector(0, -1, 0), Vector(-0.052335956, 0, 0.998629535), Vector(-0.998629535, 0, -0.052335956), "ZXY"))
sketch11.addGeometry(Part.LineSegment(Vector(2, 4, 0), Vector(-231, 4, 0)), False)
sketch11.addGeometry(Part.LineSegment(Vector(-231, 4, 0), Vector(-231, 3, 0)), False)
sketch11.addGeometry(Part.LineSegment(Vector(-231, 3, 0), Vector(2, 3, 0)), False)
sketch11.addGeometry(Part.LineSegment(Vector(2, 3, 0), Vector(2, 4, 0)), False)
sketch11.addGeometry(Part.LineSegment(Vector(2, 4, 0), Vector(-231, 4, 0)), True)  # axis
sketch11.addConstraint(Sketcher.Constraint("Coincident", 0, 2, 1, 1))
sketch11.addConstraint(Sketcher.Constraint("Coincident", 1, 2, 2, 1))
sketch11.addConstraint(Sketcher.Constraint("Coincident", 2, 2, 3, 1))
sketch11.addConstraint(Sketcher.Constraint("Coincident", 3, 2, 0, 1))
sketch11.addConstraint(Sketcher.Constraint("Horizontal", 0))
sketch11.addConstraint(Sketcher.Constraint("Vertical", 1))
sketch11.addConstraint(Sketcher.Constraint("Horizontal", 2))
sketch11.addConstraint(Sketcher.Constraint("Vertical", 3))
sketch11.addConstraint(Sketcher.Constraint("Horizontal", 4))
sketch11.addConstraint(Sketcher.Constraint("Coincident", 4, 1, 3, 2))
sketch11.addConstraint(Sketcher.Constraint("Vertical", 1, 2, 4, 2))
sketch11.addConstraint(Sketcher.Constraint("DistanceX", 0, 2, 0, 1, Q("233 mm")))
sketch11.addConstraint(Sketcher.Constraint("DistanceY", 1, 2, 1, 1, Q("1 mm")))
sketch11.addConstraint(Sketcher.Constraint("DistanceX", 0, 2, -1, 1, Q("231 mm")))
sketch11.addConstraint(Sketcher.Constraint("DistanceY", -1, 1, 0, 2, Q("4 mm")))
sketch11.setExpression("Constraints[11]", "Params.sketch11_width")
sketch11.setExpression("Constraints[12]", "Params.sketch11_height")
groove9 = doc.addObject("PartDesign::Groove", "Groove008")
body.addObject(groove9)
groove9.Profile = sketch11
groove9.ReferenceAxis = (sketch11, ["Axis0"])
groove9.setExpression("Angle", "Params.groove9_angle")

# Sketch on YZ plane
sketch12 = doc.addObject("Sketcher::SketchObject", "Sketch011")
body.addObject(sketch12)
sketch12.AttachmentSupport = (doc.YZ_Plane, [""])
sketch12.MapMode = "FlatFace"
sketch12.AttachmentOffset = App.Placement(Vector(0, 0, 155), App.Rotation())
sketch12.addGeometry(Part.LineSegment(Vector(-10, 22.669, 0), Vector(-10, 13.5, 0)), False)
sketch12.addGeometry(Part.LineSegment(Vector(-10, 13.5, 0), Vector(236.069, 13.5, 0)), False)
sketch12.addGeometry(Part.LineSegment(Vector(236.069, 13.5, 0), Vector(236.069, 22.669, 0)), False)
sketch12.addGeometry(Part.LineSegment(Vector(236.069, 22.669, 0), Vector(-10, 22.669, 0)), False)
sketch12.addConstraint(Sketcher.Constraint("Coincident", 0, 2, 1, 1))
sketch12.addConstraint(Sketcher.Constraint("Coincident", 1, 2, 2, 1))
sketch12.addConstraint(Sketcher.Constraint("Coincident", 2, 2, 3, 1))
sketch12.addConstraint(Sketcher.Constraint("Coincident", 3, 2, 0, 1))
sketch12.addConstraint(Sketcher.Constraint("Vertical", 0))
sketch12.addConstraint(Sketcher.Constraint("Horizontal", 1))
sketch12.addConstraint(Sketcher.Constraint("Vertical", 2))
sketch12.addConstraint(Sketcher.Constraint("Horizontal", 3))
sketch12.addConstraint(Sketcher.Constraint("DistanceX", 0, 2, -1, 1, Q("10 mm")))
sketch12.addConstraint(Sketcher.Constraint("DistanceY", -1, 1, 0, 2, Q("13.5 mm")))
sketch12.addConstraint(Sketcher.Constraint("DistanceX", 1, 1, 1, 2, Q("246.069 mm")))
sketch12.addConstraint(Sketcher.Constraint("DistanceY", 0, 2, 0, 1, Q("9.169 mm")))
pocket2 = doc.addObject("PartDesign::Pocket", "Pocket001")
body.addObject(pocket2)
pocket2.Profile = sketch12
pocket2.Type = "ThroughAll"

doc.recompute()
